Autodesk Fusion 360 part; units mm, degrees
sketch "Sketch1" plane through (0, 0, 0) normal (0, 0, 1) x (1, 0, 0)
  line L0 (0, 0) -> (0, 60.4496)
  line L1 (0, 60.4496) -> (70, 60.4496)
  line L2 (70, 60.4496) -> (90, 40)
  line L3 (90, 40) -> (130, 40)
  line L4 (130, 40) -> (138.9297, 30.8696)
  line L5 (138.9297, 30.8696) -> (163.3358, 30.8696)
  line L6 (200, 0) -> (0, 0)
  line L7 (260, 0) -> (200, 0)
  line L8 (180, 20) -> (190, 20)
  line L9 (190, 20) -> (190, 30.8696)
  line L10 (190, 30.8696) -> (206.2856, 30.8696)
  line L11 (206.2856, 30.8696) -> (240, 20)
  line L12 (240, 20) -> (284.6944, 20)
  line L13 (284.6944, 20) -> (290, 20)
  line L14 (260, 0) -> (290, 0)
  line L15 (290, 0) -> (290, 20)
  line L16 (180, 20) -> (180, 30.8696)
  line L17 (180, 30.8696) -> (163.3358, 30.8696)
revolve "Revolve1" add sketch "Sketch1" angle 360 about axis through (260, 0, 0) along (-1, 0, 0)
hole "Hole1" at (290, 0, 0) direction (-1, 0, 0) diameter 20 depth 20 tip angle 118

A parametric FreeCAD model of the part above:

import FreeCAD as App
import Part
import Sketcher
Q = App.Units.Quantity


def add_polygon(sketch, points):
    """Adds a closed chain of lines whose ends are joined by coincident constraints."""
    first, n = sketch.GeometryCount, len(points)
    for a, b in zip(points, points[1:] + points[:1]):
        sketch.addGeometry(Part.LineSegment(App.Vector(*a, 0), App.Vector(*b, 0)), False)
    for i in range(n):
        sketch.addConstraint(Sketcher.Constraint("Coincident", first + i, 2, first + (i + 1) % n, 1))

doc = App.newDocument("Part")
body = doc.addObject("PartDesign::Body", "Body")

sketch1 = body.newObject("Sketcher::SketchObject", "Sketch")
sketch1.AttachmentSupport = (doc.getObject("XY_Plane"), [""])
sketch1.MapMode = "FlatFace"
add_polygon(sketch1, [(0, 60.4496), (0, 0), (290, 0), (290, 20), (240, 20), (206.2856, 30.8696), (190, 30.8696), (190, 20), (180, 20), (180, 30.8696), (138.9297, 30.8696), (130, 40), (90, 40), (70, 60.4496)])
sketch1.addConstraint([
    Sketcher.Constraint("Vertical", 0),
    Sketcher.Constraint("Horizontal", 1),
    Sketcher.Constraint("Vertical", 2),
    Sketcher.Constraint("Horizontal", 3),
    Sketcher.Constraint("Horizontal", 5),
    Sketcher.Constraint("Vertical", 6),
    Sketcher.Constraint("Horizontal", 7),
    Sketcher.Constraint("Vertical", 8),
    Sketcher.Constraint("Horizontal", 9),
    Sketcher.Constraint("Horizontal", 11),
    Sketcher.Constraint("Horizontal", 13),
    Sketcher.Constraint("Coincident", 0, 2, -1, 1),
    Sketcher.Constraint("Parallel", 10, 12),
    Sketcher.Constraint("Horizontal", 3, 2, 6, 2),
    Sketcher.Constraint("Horizontal", 5, 2, 8, 2),
    Sketcher.Constraint("DistanceX", 1, 1, 1, 2, Q("290 mm")),
    Sketcher.Constraint("DistanceX", 3, 2, 3, 1, Q("50 mm")),
    Sketcher.Constraint("DistanceX", 7, 2, 7, 1, Q("10 mm")),
    Sketcher.Constraint("DistanceX", 11, 2, 11, 1, Q("40 mm")),
    Sketcher.Constraint("DistanceX", 13, 2, 13, 1, Q("70 mm")),
    Sketcher.Constraint("DistanceY", 2, 1, 2, 2, Q("20 mm")),
    Sketcher.Constraint("DistanceX", -1, 1, 5, 2, Q("190 mm")),
    Sketcher.Constraint("DistanceX", -1, 1, 10, 2, Q("130 mm")),
    Sketcher.Constraint("DistanceY", -1, 1, 10, 2, Q("40 mm")),
    Sketcher.Constraint("Angle", 4, Q("162.1306 deg")),
    Sketcher.Constraint("DistanceY", 9, 2, 12, 2, Q("29.58 mm")),
    Sketcher.Constraint("Distance", 12, Q("28.604 mm")),
])
revolution = body.newObject("PartDesign::Revolution", "Revolution")
revolution.Profile = sketch1
revolution.ReferenceAxis = (sketch1, ["H_Axis"])
revolution.Angle = 360

sketch2 = body.newObject("Sketcher::SketchObject", "Sketch001")
sketch2.AttachmentSupport = (doc.getObject("YZ_Plane"), [""])
sketch2.MapMode = "FlatFace"
sketch2.AttachmentOffset = App.Placement(App.Vector(0, 0, 290), App.Rotation())
sketch2.addGeometry(Part.Circle(App.Vector(0, 0, 0), App.Vector(0, 0, 1), 10), False)
sketch2.addConstraint([
    Sketcher.Constraint("Coincident", 0, 3, -1, 1),
    Sketcher.Constraint("Diameter", 0, Q("20 mm")),
])
doc.recompute()
hole = body.newObject("PartDesign::Hole", "Hole")
hole.Profile = sketch2
hole.ThreadType = "None"
hole.Diameter = 20
hole.DepthType = "Dimension"
hole.Depth = 20
hole.DrillPoint = "Angled"
hole.DrillPointAngle = 118

doc.recompute()
